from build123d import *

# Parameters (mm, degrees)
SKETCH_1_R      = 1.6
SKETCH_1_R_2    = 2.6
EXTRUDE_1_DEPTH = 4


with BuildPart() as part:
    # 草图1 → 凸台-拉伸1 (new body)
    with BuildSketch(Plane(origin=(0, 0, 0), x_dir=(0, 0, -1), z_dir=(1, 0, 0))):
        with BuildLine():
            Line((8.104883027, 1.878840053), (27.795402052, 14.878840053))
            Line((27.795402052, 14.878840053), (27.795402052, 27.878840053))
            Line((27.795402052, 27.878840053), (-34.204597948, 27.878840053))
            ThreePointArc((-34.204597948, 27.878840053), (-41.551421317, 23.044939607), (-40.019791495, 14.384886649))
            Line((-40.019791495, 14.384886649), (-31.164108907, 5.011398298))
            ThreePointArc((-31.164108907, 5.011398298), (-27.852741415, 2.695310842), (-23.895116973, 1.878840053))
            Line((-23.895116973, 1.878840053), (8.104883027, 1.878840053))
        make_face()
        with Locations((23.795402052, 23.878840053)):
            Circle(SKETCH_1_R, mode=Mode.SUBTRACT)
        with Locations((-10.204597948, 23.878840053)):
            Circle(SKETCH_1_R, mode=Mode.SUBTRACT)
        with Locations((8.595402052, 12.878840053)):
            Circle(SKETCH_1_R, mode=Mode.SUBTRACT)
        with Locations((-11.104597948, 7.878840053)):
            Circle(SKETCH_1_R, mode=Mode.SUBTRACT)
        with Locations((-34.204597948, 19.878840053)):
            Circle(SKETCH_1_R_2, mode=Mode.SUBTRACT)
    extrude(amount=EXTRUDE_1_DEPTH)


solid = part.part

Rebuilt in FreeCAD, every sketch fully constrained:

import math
import FreeCAD as App
import Part
import Sketcher

V = App.Vector
Q = App.Units.Quantity

doc = App.newDocument("Part")
body = doc.addObject("PartDesign::Body", "Body")

# Sketch on YZ plane
sketch1 = body.newObject("Sketcher::SketchObject", "Sketch")
sketch1.AttachmentSupport = (doc.getObject("YZ_Plane"), [""])
sketch1.MapMode = "FlatFace"
sketch1.addGeometry(Part.LineSegment(V(1.9, -8.1, 0), V(14.9, -27.8, 0)), False)
sketch1.addGeometry(Part.LineSegment(V(14.9, -27.8, 0), V(27.9, -27.8, 0)), False)
sketch1.addGeometry(Part.LineSegment(V(27.9, -27.8, 0), V(27.9, 34.2, 0)), False)
sketch1.addGeometry(Part.ArcOfCircle(Part.Circle(V(19.9, 34.2, 0), V(0, 0, 1), 8), math.radians(0), math.radians(133)), False)
sketch1.addGeometry(Part.LineSegment(V(14.4, 40, 0), V(5, 31.2, 0)), False)
sketch1.addGeometry(Part.ArcOfCircle(Part.Circle(V(11.9, 23.9, 0), V(0, 0, 1), 10), math.radians(133), math.radians(180)), False)
sketch1.addGeometry(Part.LineSegment(V(1.9, 23.9, 0), V(1.9, -8.1, 0)), False)
sketch1.addGeometry(Part.Circle(V(7.9, 11.1, 0), V(0, 0, 1), 1.6), False)
sketch1.addGeometry(Part.Circle(V(12.9, -8.6, 0), V(0, 0, 1), 1.6), False)
sketch1.addGeometry(Part.Circle(V(19.9, 34.2, 0), V(0, 0, 1), 2.6), False)
sketch1.addGeometry(Part.Circle(V(23.9, 10.2, 0), V(0, 0, 1), 1.6), False)
sketch1.addGeometry(Part.Circle(V(23.9, -23.8, 0), V(0, 0, 1), 1.6), False)
sketch1.addConstraint(Sketcher.Constraint("Coincident", 0, 2, 1, 1))
sketch1.addConstraint(Sketcher.Constraint("Coincident", 1, 2, 2, 1))
sketch1.addConstraint(Sketcher.Constraint("Tangent", 2, 2, 3, 1))
sketch1.addConstraint(Sketcher.Constraint("Tangent", 3, 2, 4, 1))
sketch1.addConstraint(Sketcher.Constraint("Tangent", 4, 2, 5, 1))
sketch1.addConstraint(Sketcher.Constraint("Tangent", 5, 2, 6, 1))
sketch1.addConstraint(Sketcher.Constraint("Coincident", 6, 2, 0, 1))
sketch1.addConstraint(Sketcher.Constraint("Horizontal", 1))
sketch1.addConstraint(Sketcher.Constraint("Vertical", 2))
sketch1.addConstraint(Sketcher.Constraint("Vertical", 6))
sketch1.addConstraint(Sketcher.Constraint("Coincident", 9, 3, 3, 3))
sketch1.addConstraint(Sketcher.Constraint("Equal", 7, 8))
sketch1.addConstraint(Sketcher.Constraint("Equal", 8, 10))
sketch1.addConstraint(Sketcher.Constraint("Equal", 10, 11))
sketch1.addConstraint(Sketcher.Constraint("Vertical", 10, 3, 11, 3))
sketch1.addConstraint(Sketcher.Constraint("Radius", 3, Q("8 mm")))
sketch1.addConstraint(Sketcher.Constraint("Radius", 5, Q("10 mm")))
sketch1.addConstraint(Sketcher.Constraint("Diameter", 7, Q("3.2 mm")))
sketch1.addConstraint(Sketcher.Constraint("Diameter", 9, Q("5.2 mm")))
sketch1.addConstraint(Sketcher.Constraint("DistanceX", 1, 1, 1, 2, Q("13 mm")))
sketch1.addConstraint(Sketcher.Constraint("DistanceY", 2, 1, 2, 2, Q("62 mm")))
sketch1.addConstraint(Sketcher.Constraint("DistanceY", 6, 2, 6, 1, Q("32 mm")))
sketch1.addConstraint(Sketcher.Constraint("DistanceX", 5, 3, 3, 3, Q("8 mm")))
sketch1.addConstraint(Sketcher.Constraint("DistanceX", 7, 3, 5, 3, Q("4 mm")))
sketch1.addConstraint(Sketcher.Constraint("DistanceX", 7, 3, 8, 3, Q("5 mm")))
sketch1.addConstraint(Sketcher.Constraint("DistanceX", 7, 3, 10, 3, Q("16 mm")))
sketch1.addConstraint(Sketcher.Constraint("DistanceY", 10, 3, 3, 3, Q("24 mm")))
sketch1.addConstraint(Sketcher.Constraint("DistanceY", 11, 3, 10, 3, Q("34 mm")))
sketch1.addConstraint(Sketcher.Constraint("DistanceY", 7, 3, 3, 3, Q("23.1 mm")))
sketch1.addConstraint(Sketcher.Constraint("DistanceY", 8, 3, 7, 3, Q("19.7 mm")))
sketch1.addConstraint(Sketcher.Constraint("DistanceX", -1, 1, 4, 2, Q("5.011398 mm")))
sketch1.addConstraint(Sketcher.Constraint("Distance", 0, Q("23.594841 mm")))
sketch1.addConstraint(Sketcher.Constraint("DistanceY", -1, 1, 3, 2, Q("40.019791 mm")))
pad1 = body.newObject("PartDesign::Pad", "Pad")
pad1.Profile = sketch1
pad1.Length = 4

doc.recompute()
